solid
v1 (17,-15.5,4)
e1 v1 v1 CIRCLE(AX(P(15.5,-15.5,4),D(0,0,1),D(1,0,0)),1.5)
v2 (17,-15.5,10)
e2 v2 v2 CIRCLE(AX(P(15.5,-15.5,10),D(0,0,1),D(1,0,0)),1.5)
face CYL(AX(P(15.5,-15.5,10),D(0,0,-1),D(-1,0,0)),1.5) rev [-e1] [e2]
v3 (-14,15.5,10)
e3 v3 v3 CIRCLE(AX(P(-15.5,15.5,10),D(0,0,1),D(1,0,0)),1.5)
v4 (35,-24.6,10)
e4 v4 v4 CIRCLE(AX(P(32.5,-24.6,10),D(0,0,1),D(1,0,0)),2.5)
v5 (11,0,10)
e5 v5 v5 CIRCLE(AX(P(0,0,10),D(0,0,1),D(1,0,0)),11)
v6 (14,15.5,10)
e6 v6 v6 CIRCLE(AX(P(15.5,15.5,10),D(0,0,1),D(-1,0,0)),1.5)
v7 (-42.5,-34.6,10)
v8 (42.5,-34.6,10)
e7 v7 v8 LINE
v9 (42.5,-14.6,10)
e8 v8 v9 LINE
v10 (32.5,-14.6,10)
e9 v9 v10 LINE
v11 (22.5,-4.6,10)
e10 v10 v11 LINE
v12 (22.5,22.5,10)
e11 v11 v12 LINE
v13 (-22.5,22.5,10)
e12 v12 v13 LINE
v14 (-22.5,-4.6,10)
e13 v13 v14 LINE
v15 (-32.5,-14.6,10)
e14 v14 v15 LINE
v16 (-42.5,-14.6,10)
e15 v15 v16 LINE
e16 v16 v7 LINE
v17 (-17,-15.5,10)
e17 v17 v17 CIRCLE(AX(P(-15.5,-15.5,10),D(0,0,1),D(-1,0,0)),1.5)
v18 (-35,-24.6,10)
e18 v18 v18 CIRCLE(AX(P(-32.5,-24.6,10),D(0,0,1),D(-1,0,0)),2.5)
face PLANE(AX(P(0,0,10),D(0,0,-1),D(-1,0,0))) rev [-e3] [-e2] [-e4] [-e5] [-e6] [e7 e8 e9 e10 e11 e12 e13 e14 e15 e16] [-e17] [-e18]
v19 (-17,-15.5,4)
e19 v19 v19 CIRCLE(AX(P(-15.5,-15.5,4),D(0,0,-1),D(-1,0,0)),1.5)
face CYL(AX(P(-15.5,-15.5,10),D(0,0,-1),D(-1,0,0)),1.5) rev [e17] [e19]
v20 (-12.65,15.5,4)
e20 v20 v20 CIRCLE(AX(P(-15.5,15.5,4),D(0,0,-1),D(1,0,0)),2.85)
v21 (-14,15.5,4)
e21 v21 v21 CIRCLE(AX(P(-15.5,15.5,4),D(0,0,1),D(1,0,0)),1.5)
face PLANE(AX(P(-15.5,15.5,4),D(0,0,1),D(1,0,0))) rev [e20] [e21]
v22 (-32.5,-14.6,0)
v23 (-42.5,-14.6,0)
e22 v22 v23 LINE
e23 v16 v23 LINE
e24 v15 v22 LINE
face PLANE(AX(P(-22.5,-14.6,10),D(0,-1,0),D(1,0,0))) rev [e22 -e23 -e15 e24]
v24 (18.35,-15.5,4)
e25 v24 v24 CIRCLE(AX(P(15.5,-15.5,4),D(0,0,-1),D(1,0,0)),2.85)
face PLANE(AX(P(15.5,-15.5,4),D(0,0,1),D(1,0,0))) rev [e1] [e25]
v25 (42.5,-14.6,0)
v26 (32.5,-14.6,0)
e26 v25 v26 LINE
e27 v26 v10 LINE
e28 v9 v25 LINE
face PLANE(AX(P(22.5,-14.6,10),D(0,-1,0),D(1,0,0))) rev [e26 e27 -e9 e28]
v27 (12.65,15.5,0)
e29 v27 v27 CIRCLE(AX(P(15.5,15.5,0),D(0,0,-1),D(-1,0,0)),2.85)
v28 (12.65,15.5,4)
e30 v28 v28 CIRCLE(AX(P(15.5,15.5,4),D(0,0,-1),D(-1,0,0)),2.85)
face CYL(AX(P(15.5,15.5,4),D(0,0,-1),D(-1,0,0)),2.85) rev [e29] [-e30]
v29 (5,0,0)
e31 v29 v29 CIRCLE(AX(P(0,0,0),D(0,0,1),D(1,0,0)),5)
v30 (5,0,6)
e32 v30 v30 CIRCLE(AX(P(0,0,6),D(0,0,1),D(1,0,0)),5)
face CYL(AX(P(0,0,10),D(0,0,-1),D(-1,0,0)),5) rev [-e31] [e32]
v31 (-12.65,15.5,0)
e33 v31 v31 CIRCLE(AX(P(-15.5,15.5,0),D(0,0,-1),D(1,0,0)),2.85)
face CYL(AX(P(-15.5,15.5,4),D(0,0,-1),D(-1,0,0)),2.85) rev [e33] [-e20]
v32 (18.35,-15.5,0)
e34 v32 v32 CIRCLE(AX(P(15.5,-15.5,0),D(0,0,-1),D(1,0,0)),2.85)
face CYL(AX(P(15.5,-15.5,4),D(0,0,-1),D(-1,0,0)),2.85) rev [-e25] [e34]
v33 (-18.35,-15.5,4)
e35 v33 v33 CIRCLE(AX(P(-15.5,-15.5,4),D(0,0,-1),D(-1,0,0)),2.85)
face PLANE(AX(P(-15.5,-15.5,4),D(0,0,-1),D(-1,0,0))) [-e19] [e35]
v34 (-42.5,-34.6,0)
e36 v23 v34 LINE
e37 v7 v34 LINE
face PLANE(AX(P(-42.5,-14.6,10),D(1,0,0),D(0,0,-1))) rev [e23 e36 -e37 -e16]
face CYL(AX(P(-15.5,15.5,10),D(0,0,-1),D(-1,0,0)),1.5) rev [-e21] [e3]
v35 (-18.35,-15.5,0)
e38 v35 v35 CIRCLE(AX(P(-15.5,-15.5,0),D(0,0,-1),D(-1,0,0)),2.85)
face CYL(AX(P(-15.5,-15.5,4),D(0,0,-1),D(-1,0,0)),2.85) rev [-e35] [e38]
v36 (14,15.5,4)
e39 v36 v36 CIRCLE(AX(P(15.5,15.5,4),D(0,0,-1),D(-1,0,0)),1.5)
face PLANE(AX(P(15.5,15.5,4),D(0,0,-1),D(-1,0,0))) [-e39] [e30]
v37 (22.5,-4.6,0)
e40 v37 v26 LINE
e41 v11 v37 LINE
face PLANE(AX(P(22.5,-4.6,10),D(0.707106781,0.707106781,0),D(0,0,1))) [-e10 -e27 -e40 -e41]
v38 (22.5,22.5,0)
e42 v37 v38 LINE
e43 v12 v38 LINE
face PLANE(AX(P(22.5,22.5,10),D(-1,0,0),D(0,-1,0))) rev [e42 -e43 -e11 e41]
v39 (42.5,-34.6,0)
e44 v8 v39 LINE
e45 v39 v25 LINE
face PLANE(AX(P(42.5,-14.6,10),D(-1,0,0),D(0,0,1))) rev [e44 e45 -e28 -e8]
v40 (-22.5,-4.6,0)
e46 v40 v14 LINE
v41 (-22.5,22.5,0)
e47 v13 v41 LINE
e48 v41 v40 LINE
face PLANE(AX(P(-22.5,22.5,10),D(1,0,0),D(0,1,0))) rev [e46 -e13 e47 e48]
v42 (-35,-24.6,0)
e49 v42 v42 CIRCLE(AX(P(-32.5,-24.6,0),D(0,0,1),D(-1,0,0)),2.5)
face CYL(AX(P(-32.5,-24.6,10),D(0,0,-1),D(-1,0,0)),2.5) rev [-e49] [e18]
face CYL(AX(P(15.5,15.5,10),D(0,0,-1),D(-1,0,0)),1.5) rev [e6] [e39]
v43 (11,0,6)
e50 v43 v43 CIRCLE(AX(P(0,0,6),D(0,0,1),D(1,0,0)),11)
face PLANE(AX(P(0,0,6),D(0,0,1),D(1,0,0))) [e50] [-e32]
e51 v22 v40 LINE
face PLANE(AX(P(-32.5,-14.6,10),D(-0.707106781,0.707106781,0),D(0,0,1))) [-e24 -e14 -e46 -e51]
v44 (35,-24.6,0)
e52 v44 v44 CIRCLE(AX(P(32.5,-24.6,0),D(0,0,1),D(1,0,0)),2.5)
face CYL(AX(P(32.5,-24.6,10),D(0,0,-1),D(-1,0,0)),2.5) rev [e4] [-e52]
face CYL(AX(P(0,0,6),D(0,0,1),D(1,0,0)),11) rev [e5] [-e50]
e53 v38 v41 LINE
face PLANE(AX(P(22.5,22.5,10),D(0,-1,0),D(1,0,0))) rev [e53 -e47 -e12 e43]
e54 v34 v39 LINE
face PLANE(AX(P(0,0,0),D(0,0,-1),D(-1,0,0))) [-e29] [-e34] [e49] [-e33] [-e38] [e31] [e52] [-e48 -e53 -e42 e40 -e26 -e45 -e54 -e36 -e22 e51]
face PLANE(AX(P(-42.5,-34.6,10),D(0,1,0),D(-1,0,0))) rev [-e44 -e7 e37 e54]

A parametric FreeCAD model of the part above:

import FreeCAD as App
import Part
import Sketcher

V = App.Vector
Q = App.Units.Quantity


def edges_at(feature, points):
    """Names of the edges that pass closest to the given points."""
    edges = feature.Shape.Edges
    near = lambda p: min(range(len(edges)), key=lambda i: edges[i].distToShape(Part.Vertex(*p))[0])
    return sorted({f"Edge{near(p) + 1}" for p in points})

doc = App.newDocument("Part")
body = doc.addObject("PartDesign::Body", "Body")

# Sketch on XY plane
sketch1 = doc.addObject("Sketcher::SketchObject", "Sketch")
body.addObject(sketch1)
sketch1.AttachmentSupport = (doc.XY_Plane, [""])
sketch1.MapMode = "FlatFace"
sketch1.addGeometry([
    Part.LineSegment(V(22.5, 22.5, 0), V(-22.5, 22.5, 0)),  # 0
    Part.LineSegment(V(-22.5, 22.5, 0), V(-22.5, -14.6, 0)),  # 1
    Part.LineSegment(V(-22.5, -14.6, 0), V(-42.5, -14.6, 0)),  # 2
    Part.LineSegment(V(-42.5, -14.6, 0), V(-42.5, -34.6, 0)),  # 3
    Part.LineSegment(V(-42.5, -34.6, 0), V(42.5, -34.6, 0)),  # 4
    Part.LineSegment(V(42.5, -34.6, 0), V(42.5, -14.6, 0)),  # 5
    Part.LineSegment(V(42.5, -14.6, 0), V(22.5, -14.6, 0)),  # 6
    Part.LineSegment(V(22.5, -14.6, 0), V(22.5, 22.5, 0)),  # 7
    Part.Circle(V(-32.5, -24.6, 0), V(0, 0, 1), 2.5),  # 8
    Part.Circle(V(-15.5, -15.5, 0), V(0, 0, 1), 1.5),  # 9
    Part.Circle(V(32.5, -24.6, 0), V(0, 0, 1), 2.5),  # 10
    Part.Circle(V(15.5, -15.5, 0), V(0, 0, 1), 1.5),  # 11
    Part.Circle(V(-15.5, 15.5, 0), V(0, 0, 1), 1.5),  # 12
    Part.Circle(V(0, 0, 0), V(0, 0, 1), 5),  # 13
    Part.Circle(V(15.5, 15.5, 0), V(0, 0, 1), 1.5),  # 14
], False)
sketch1.addConstraint([
    Sketcher.Constraint("Coincident", 0, 2, 1, 1),
    Sketcher.Constraint("Coincident", 1, 2, 2, 1),
    Sketcher.Constraint("Coincident", 2, 2, 3, 1),
    Sketcher.Constraint("Coincident", 3, 2, 4, 1),
    Sketcher.Constraint("Coincident", 4, 2, 5, 1),
    Sketcher.Constraint("Coincident", 5, 2, 6, 1),
    Sketcher.Constraint("Coincident", 6, 2, 7, 1),
    Sketcher.Constraint("Coincident", 7, 2, 0, 1),
    Sketcher.Constraint("Horizontal", 0),
    Sketcher.Constraint("Vertical", 1),
    Sketcher.Constraint("Horizontal", 2),
    Sketcher.Constraint("Vertical", 3),
    Sketcher.Constraint("Horizontal", 4),
    Sketcher.Constraint("Vertical", 5),
    Sketcher.Constraint("Horizontal", 6),
    Sketcher.Constraint("Vertical", 7),
    Sketcher.Constraint("Coincident", 13, 3, -1, 1),
    Sketcher.Constraint("Equal", 8, 10),
    Sketcher.Constraint("Equal", 9, 11),
    Sketcher.Constraint("Equal", 11, 12),
    Sketcher.Constraint("Equal", 12, 14),
    Sketcher.Constraint("Symmetric", 11, 3, 12, 3, -1, 1),
    Sketcher.Constraint("Symmetric", 9, 3, 14, 3, -1, 1),
    Sketcher.Constraint("Symmetric", 8, 3, 10, 3, -2),
    Sketcher.Constraint("Symmetric", 9, 3, 11, 3, -2),
    Sketcher.Constraint("Symmetric", 2, 2, 5, 2, -2),
    Sketcher.Constraint("Equal", 2, 6),
    Sketcher.Constraint("Equal", 6, 3),
    Sketcher.Constraint("Diameter", 8, Q("5 mm")),
    Sketcher.Constraint("Diameter", 9, Q("3 mm")),
    Sketcher.Constraint("Diameter", 13, Q("10 mm")),
    Sketcher.Constraint("DistanceX", 0, 2, 0, 1, Q("45 mm")),
    Sketcher.Constraint("DistanceX", 2, 2, 2, 1, Q("20 mm")),
    Sketcher.Constraint("DistanceY", 1, 2, 1, 1, Q("37.1 mm")),
    Sketcher.Constraint("DistanceX", 8, 3, 9, 3, Q("17 mm")),
    Sketcher.Constraint("DistanceX", 9, 3, 10, 3, Q("48 mm")),
    Sketcher.Constraint("DistanceY", 9, 3, 12, 3, Q("31 mm")),
    Sketcher.Constraint("DistanceY", 12, 3, 0, 2, Q("7 mm")),
    Sketcher.Constraint("DistanceY", 8, 3, 1, 2, Q("10 mm")),
])
pad1 = doc.addObject("PartDesign::Pad", "Pad")
body.addObject(pad1)
pad1.Profile = sketch1
pad1.Length = 10

# Sketch on XY plane
sketch2 = doc.addObject("Sketcher::SketchObject", "Sketch001")
body.addObject(sketch2)
sketch2.AttachmentSupport = (doc.XY_Plane, [""])
sketch2.MapMode = "FlatFace"
sketch2.AttachmentOffset = App.Placement(V(0, 0, 10), App.Rotation())
sketch2.addGeometry(Part.Circle(V(0, 0, 0), V(0, 0, 1), 11), False)
sketch2.addConstraint([
    Sketcher.Constraint("Coincident", 0, 3, -1, 1),
    Sketcher.Constraint("Diameter", 0, Q("22 mm")),
])
pocket1 = doc.addObject("PartDesign::Pocket", "Pocket")
body.addObject(pocket1)
pocket1.Profile = sketch2
pocket1.Length = 4
doc.recompute()

chamfer = doc.addObject("PartDesign::Chamfer", "Chamfer")
body.addObject(chamfer)
chamfer.Base = (pocket1, edges_at(pocket1, [(22.5, -14.6, 5), (-22.5, -14.6, 5)]))
chamfer.Size = 10

# Sketch on XY plane
sketch3 = doc.addObject("Sketcher::SketchObject", "Sketch002")
body.addObject(sketch3)
sketch3.AttachmentSupport = (doc.XY_Plane, [""])
sketch3.MapMode = "FlatFace"
sketch3.addGeometry([
    Part.Circle(V(15.5, 15.5, 0), V(0, 0, 1), 2.9),
    Part.Circle(V(-15.5, 15.5, 0), V(0, 0, 1), 2.9),
    Part.Circle(V(15.5, -15.5, 0), V(0, 0, 1), 2.9),
    Part.Circle(V(-15.5, -15.5, 0), V(0, 0, 1), 2.9),
], False)
sketch3.addConstraint([
    Sketcher.Constraint("Equal", 0, 1),
    Sketcher.Constraint("Equal", 1, 2),
    Sketcher.Constraint("Equal", 2, 3),
    Sketcher.Constraint("Symmetric", 1, 3, 2, 3, -1, 1),
    Sketcher.Constraint("Symmetric", 0, 3, 3, 3, -1, 1),
    Sketcher.Constraint("Symmetric", 0, 3, 1, 3, -2),
    Sketcher.Constraint("Diameter", 0, Q("5.7 mm")),
    Sketcher.Constraint("DistanceX", 1, 3, 0, 3, Q("31 mm")),
    Sketcher.Constraint("DistanceY", 2, 3, 0, 3, Q("31 mm")),
])
pocket2 = doc.addObject("PartDesign::Pocket", "Pocket001")
body.addObject(pocket2)
pocket2.Profile = sketch3
pocket2.Length = 4
pocket2.Reversed = True

doc.recompute()
